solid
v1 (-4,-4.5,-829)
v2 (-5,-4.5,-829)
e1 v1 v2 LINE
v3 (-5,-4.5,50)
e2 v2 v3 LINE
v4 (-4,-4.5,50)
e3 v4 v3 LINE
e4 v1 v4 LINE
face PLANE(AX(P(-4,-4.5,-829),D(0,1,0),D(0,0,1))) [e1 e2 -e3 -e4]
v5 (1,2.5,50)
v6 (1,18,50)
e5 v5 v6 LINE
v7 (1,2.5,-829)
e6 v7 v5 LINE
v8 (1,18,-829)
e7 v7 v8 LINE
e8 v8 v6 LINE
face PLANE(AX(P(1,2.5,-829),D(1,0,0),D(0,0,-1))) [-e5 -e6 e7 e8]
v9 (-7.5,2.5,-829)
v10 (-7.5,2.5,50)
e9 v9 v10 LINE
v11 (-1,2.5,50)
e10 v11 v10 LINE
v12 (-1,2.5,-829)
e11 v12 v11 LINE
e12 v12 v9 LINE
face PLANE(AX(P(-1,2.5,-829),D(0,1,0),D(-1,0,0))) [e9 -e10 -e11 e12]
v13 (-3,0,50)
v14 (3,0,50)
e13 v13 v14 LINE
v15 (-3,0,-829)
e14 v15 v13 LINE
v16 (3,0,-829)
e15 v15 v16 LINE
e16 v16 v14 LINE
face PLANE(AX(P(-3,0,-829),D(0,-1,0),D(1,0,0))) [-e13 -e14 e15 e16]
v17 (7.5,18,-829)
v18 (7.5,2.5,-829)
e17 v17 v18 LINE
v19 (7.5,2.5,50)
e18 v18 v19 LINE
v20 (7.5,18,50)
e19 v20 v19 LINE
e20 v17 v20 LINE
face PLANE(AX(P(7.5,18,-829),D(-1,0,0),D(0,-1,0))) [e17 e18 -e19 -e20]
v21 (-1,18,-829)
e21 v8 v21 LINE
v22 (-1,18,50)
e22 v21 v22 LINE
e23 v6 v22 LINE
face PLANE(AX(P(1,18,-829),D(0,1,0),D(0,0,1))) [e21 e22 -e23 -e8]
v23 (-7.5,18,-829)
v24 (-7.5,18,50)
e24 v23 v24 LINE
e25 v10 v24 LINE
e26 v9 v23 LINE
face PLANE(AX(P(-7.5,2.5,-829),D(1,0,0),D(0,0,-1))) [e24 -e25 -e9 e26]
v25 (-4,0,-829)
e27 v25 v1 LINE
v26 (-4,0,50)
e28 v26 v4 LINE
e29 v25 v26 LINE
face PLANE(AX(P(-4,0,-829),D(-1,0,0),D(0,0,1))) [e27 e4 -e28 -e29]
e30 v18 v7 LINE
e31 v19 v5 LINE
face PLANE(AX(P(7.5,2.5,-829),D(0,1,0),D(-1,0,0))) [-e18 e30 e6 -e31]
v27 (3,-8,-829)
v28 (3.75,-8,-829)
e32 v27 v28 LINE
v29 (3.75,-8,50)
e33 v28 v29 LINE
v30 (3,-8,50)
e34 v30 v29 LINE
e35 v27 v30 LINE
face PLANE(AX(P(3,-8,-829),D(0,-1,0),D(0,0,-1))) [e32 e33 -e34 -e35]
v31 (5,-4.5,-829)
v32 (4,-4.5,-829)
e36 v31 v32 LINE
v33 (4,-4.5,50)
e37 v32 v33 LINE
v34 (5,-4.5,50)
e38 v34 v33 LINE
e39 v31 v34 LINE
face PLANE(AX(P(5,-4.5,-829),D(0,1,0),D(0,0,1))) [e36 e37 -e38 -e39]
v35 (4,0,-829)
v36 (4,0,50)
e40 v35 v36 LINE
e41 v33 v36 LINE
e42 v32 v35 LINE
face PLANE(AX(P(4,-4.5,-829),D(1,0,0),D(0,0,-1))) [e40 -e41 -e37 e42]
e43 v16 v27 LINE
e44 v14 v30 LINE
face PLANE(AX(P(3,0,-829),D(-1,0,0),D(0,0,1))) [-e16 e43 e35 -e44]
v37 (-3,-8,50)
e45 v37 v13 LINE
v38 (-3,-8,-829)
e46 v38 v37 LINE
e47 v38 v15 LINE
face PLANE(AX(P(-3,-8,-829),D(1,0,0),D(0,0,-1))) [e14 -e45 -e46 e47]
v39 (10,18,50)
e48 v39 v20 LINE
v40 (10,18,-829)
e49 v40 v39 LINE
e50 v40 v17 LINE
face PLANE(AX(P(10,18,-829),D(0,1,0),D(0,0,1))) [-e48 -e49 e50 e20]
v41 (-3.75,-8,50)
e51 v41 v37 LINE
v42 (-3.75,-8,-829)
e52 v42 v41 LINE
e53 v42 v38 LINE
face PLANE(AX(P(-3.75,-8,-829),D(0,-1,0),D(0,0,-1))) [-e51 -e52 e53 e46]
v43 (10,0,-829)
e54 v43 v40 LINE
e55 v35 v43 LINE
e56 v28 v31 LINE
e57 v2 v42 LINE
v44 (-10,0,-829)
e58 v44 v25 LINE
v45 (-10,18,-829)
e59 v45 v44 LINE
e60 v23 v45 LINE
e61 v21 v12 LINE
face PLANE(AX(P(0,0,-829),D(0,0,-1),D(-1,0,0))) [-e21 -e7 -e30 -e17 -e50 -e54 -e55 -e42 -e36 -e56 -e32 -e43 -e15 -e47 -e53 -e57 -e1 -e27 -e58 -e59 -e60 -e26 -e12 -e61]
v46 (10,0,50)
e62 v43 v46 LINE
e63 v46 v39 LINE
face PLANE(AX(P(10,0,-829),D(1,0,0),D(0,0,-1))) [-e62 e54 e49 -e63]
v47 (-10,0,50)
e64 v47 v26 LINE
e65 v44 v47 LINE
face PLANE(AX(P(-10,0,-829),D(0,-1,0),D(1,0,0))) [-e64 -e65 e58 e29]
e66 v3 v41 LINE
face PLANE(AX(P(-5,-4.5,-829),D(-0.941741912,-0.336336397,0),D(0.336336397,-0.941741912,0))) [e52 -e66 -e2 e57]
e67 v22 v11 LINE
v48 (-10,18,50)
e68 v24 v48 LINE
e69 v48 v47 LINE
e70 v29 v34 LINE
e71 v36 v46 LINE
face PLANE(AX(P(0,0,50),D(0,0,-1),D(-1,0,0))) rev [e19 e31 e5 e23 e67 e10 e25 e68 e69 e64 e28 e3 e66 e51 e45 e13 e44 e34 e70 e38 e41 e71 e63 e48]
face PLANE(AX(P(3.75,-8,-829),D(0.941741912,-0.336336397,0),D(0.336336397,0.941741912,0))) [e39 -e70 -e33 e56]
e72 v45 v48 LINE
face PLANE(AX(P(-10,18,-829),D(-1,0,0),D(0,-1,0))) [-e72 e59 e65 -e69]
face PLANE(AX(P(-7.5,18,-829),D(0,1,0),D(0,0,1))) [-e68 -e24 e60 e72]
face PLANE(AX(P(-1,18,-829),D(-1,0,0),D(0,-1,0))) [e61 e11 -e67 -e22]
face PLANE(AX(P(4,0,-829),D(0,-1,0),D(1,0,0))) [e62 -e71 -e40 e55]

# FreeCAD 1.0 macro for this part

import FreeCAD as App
import Part
import Sketcher

V = App.Vector
Q = App.Units.Quantity

doc = App.newDocument("Part")
body = doc.addObject("PartDesign::Body", "Body")

sketch1 = body.newObject("Sketcher::SketchObject", "Sketch")
sketch1.AttachmentSupport = (doc.getObject("XY_Plane"), [""])
sketch1.MapMode = "FlatFace"
sketch1.AttachmentOffset = App.Placement(V(0, 0, 50), App.Rotation())
sketch1.addGeometry([
    Part.LineSegment(V(-1, 2.5, 0), V(-7.5, 2.5, 0)),
    Part.LineSegment(V(-7.5, 2.5, 0), V(-7.5, 18, 0)),
    Part.LineSegment(V(-7.5, 18, 0), V(-10, 18, 0)),
    Part.LineSegment(V(-10, 18, 0), V(-10, 0, 0)),
    Part.LineSegment(V(-10, 0, 0), V(-4, 0, 0)),
    Part.LineSegment(V(-4, 0, 0), V(-4, -4.5, 0)),
    Part.LineSegment(V(-4, -4.5, 0), V(-5, -4.5, 0)),
    Part.LineSegment(V(-5, -4.5, 0), V(-3.8, -8, 0)),
    Part.LineSegment(V(-3.8, -8, 0), V(-3, -8, 0)),
    Part.LineSegment(V(-3, -8, 0), V(-3, 0, 0)),
    Part.LineSegment(V(-3, 0, 0), V(3, 0, 0)),
    Part.LineSegment(V(3, 0, 0), V(3, -8, 0)),
    Part.LineSegment(V(3, -8, 0), V(3.8, -8, 0)),
    Part.LineSegment(V(3.8, -8, 0), V(5, -4.5, 0)),
    Part.LineSegment(V(5, -4.5, 0), V(4, -4.5, 0)),
    Part.LineSegment(V(4, -4.5, 0), V(4, 0, 0)),
    Part.LineSegment(V(4, 0, 0), V(10, 0, 0)),
    Part.LineSegment(V(10, 0, 0), V(10, 18, 0)),
    Part.LineSegment(V(10, 18, 0), V(7.5, 18, 0)),
    Part.LineSegment(V(7.5, 18, 0), V(7.5, 2.5, 0)),
    Part.LineSegment(V(7.5, 2.5, 0), V(1, 2.5, 0)),
    Part.LineSegment(V(1, 2.5, 0), V(1, 18, 0)),
    Part.LineSegment(V(1, 18, 0), V(-1, 18, 0)),
    Part.LineSegment(V(-1, 18, 0), V(-1, 2.5, 0)),
], False)
sketch1.addConstraint([
    Sketcher.Constraint("Coincident", 0, 2, 1, 1),
    Sketcher.Constraint("Coincident", 1, 2, 2, 1),
    Sketcher.Constraint("Coincident", 2, 2, 3, 1),
    Sketcher.Constraint("Coincident", 3, 2, 4, 1),
    Sketcher.Constraint("Coincident", 4, 2, 5, 1),
    Sketcher.Constraint("Coincident", 5, 2, 6, 1),
    Sketcher.Constraint("Coincident", 6, 2, 7, 1),
    Sketcher.Constraint("Coincident", 7, 2, 8, 1),
    Sketcher.Constraint("Coincident", 8, 2, 9, 1),
    Sketcher.Constraint("Coincident", 9, 2, 10, 1),
    Sketcher.Constraint("Coincident", 10, 2, 11, 1),
    Sketcher.Constraint("Coincident", 11, 2, 12, 1),
    Sketcher.Constraint("Coincident", 12, 2, 13, 1),
    Sketcher.Constraint("Coincident", 13, 2, 14, 1),
    Sketcher.Constraint("Coincident", 14, 2, 15, 1),
    Sketcher.Constraint("Coincident", 15, 2, 16, 1),
    Sketcher.Constraint("Coincident", 16, 2, 17, 1),
    Sketcher.Constraint("Coincident", 17, 2, 18, 1),
    Sketcher.Constraint("Coincident", 18, 2, 19, 1),
    Sketcher.Constraint("Coincident", 19, 2, 20, 1),
    Sketcher.Constraint("Coincident", 20, 2, 21, 1),
    Sketcher.Constraint("Coincident", 21, 2, 22, 1),
    Sketcher.Constraint("Coincident", 22, 2, 23, 1),
    Sketcher.Constraint("Coincident", 23, 2, 0, 1),
    Sketcher.Constraint("Horizontal", 0),
    Sketcher.Constraint("Vertical", 1),
    Sketcher.Constraint("Horizontal", 2),
    Sketcher.Constraint("Vertical", 3),
    Sketcher.Constraint("Horizontal", 4),
    Sketcher.Constraint("Vertical", 5),
    Sketcher.Constraint("Horizontal", 6),
    Sketcher.Constraint("Horizontal", 8),
    Sketcher.Constraint("Vertical", 9),
    Sketcher.Constraint("Horizontal", 10),
    Sketcher.Constraint("Vertical", 11),
    Sketcher.Constraint("Horizontal", 12),
    Sketcher.Constraint("Horizontal", 14),
    Sketcher.Constraint("Vertical", 15),
    Sketcher.Constraint("Horizontal", 16),
    Sketcher.Constraint("Vertical", 17),
    Sketcher.Constraint("Horizontal", 18),
    Sketcher.Constraint("Vertical", 19),
    Sketcher.Constraint("Horizontal", 20),
    Sketcher.Constraint("Vertical", 21),
    Sketcher.Constraint("Horizontal", 22),
    Sketcher.Constraint("Vertical", 23),
    Sketcher.Constraint("Symmetric", 9, 2, 10, 2, -1, 1),
    Sketcher.Constraint("Symmetric", 4, 2, 15, 2, -1, 1),
    Sketcher.Constraint("Symmetric", 7, 2, 12, 2, -2),
    Sketcher.Constraint("Symmetric", 6, 2, 13, 2, -2),
    Sketcher.Constraint("Symmetric", 3, 2, 16, 2, -2),
    Sketcher.Constraint("Symmetric", 1, 2, 18, 2, -2),
    Sketcher.Constraint("Symmetric", 20, 2, 23, 2, -2),
    Sketcher.Constraint("Horizontal", 18, 2, 21, 2),
    Sketcher.Constraint("Equal", 4, 10),
    Sketcher.Constraint("DistanceX", 4, 1, 4, 2, Q("6 mm")),
    Sketcher.Constraint("DistanceX", 6, 2, 6, 1, Q("1 mm")),
    Sketcher.Constraint("DistanceX", 22, 2, 22, 1, Q("2 mm")),
    Sketcher.Constraint("DistanceY", 3, 2, 3, 1, Q("18 mm")),
    Sketcher.Constraint("DistanceY", 9, 1, 9, 2, Q("8 mm")),
    Sketcher.Constraint("DistanceX", 0, 2, 0, 1, Q("6.5 mm")),
    Sketcher.Constraint("DistanceX", 2, 2, 2, 1, Q("2.5 mm")),
    Sketcher.Constraint("DistanceY", 1, 1, 1, 2, Q("15.5 mm")),
    Sketcher.Constraint("DistanceY", 5, 2, 5, 1, Q("4.5 mm")),
    Sketcher.Constraint("DistanceX", 8, 1, 8, 2, Q("0.75 mm")),
])
pad1 = body.newObject("PartDesign::Pad", "Pad")
pad1.Profile = sketch1
pad1.Length = 879
pad1.Reversed = True

doc.recompute()
